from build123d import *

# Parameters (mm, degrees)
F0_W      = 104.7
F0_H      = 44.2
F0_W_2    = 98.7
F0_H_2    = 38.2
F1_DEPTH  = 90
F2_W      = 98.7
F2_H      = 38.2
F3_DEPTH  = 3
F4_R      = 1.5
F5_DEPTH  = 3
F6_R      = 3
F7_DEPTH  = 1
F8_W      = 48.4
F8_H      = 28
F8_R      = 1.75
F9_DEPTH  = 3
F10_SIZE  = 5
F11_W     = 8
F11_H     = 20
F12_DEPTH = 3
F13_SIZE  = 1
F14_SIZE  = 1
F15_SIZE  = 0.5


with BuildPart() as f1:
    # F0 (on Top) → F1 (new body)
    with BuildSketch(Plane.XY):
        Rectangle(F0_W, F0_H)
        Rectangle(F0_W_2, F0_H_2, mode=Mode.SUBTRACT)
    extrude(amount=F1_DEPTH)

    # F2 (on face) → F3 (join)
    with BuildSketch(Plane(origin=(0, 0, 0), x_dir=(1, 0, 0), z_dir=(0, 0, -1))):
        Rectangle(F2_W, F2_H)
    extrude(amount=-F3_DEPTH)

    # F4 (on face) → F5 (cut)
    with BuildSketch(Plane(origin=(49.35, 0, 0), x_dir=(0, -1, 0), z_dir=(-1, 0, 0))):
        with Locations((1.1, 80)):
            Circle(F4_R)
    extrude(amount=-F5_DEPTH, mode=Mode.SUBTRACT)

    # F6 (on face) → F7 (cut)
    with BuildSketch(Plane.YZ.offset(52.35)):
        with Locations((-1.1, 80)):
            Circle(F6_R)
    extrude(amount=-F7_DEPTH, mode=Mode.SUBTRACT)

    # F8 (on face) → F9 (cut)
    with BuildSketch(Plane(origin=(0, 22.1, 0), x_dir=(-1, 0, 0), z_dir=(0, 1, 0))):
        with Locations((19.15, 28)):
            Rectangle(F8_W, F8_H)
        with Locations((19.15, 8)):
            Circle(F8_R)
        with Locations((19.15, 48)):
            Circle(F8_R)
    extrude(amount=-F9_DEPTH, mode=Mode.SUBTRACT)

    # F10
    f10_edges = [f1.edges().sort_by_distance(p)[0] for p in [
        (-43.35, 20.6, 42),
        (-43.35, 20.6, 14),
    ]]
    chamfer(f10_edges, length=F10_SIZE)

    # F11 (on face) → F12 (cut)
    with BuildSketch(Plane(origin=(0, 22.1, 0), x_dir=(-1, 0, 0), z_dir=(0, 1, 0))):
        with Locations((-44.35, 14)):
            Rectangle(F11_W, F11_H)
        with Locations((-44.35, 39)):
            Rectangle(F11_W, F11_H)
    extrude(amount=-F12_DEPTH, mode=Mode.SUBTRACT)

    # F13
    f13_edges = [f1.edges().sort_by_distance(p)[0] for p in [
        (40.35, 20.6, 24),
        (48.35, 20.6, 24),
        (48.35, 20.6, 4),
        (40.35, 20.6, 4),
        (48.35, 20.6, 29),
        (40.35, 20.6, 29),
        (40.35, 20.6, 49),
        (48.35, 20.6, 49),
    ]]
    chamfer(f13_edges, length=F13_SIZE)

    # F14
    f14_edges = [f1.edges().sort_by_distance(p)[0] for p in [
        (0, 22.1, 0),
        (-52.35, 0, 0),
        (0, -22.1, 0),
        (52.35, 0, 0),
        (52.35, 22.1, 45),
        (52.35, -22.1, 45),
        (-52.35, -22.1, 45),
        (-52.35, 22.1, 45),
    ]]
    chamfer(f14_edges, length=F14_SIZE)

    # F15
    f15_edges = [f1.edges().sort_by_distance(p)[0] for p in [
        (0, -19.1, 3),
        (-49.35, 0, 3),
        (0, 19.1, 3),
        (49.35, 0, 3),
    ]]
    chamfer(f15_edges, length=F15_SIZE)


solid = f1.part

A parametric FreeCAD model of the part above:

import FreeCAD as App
import Part
import Sketcher

V = App.Vector


def edges_at(feature, points):
    """Names of the edges that pass closest to the given points."""
    edges = feature.Shape.Edges
    near = lambda p: min(range(len(edges)), key=lambda i: edges[i].distToShape(Part.Vertex(*p))[0])
    return sorted({f"Edge{near(p) + 1}" for p in points})

doc = App.newDocument("Part")
body = doc.addObject("PartDesign::Body", "Body")

sketch1 = body.newObject("Sketcher::SketchObject", "Sketch")
sketch1.AttachmentSupport = (doc.getObject("XY_Plane"), [""])
sketch1.MapMode = "FlatFace"
sketch1.addGeometry([
    Part.LineSegment(V(-52, 22, 0), V(-52, -22, 0)),
    Part.LineSegment(V(-52, -22, 0), V(52, -22, 0)),
    Part.LineSegment(V(52, -22, 0), V(52, 22, 0)),
    Part.LineSegment(V(52, 22, 0), V(-52, 22, 0)),
    Part.LineSegment(V(49, -19, 0), V(-49, -19, 0)),
    Part.LineSegment(V(-49, -19, 0), V(-49, 19, 0)),
    Part.LineSegment(V(-49, 19, 0), V(49, 19, 0)),
    Part.LineSegment(V(49, 19, 0), V(49, -19, 0)),
], False)
sketch1.addConstraint([
    Sketcher.Constraint("Coincident", 0, 2, 1, 1),
    Sketcher.Constraint("Coincident", 1, 2, 2, 1),
    Sketcher.Constraint("Coincident", 2, 2, 3, 1),
    Sketcher.Constraint("Coincident", 3, 2, 0, 1),
    Sketcher.Constraint("Coincident", 4, 2, 5, 1),
    Sketcher.Constraint("Coincident", 5, 2, 6, 1),
    Sketcher.Constraint("Coincident", 6, 2, 7, 1),
    Sketcher.Constraint("Coincident", 7, 2, 4, 1),
    Sketcher.Constraint("Vertical", 0),
    Sketcher.Constraint("Horizontal", 1),
    Sketcher.Constraint("Vertical", 2),
    Sketcher.Constraint("Horizontal", 3),
    Sketcher.Constraint("Horizontal", 4),
    Sketcher.Constraint("Vertical", 5),
    Sketcher.Constraint("Horizontal", 6),
    Sketcher.Constraint("Vertical", 7),
    Sketcher.Constraint("Symmetric", 0, 2, 2, 2, -1, 1),
    Sketcher.Constraint("Symmetric", 4, 2, 6, 2, -1, 1),
    Sketcher.Constraint("DistanceX", 1, 1, 1, 2, 104.7),
    Sketcher.Constraint("DistanceX", 4, 2, 4, 1, 98.7),
    Sketcher.Constraint("DistanceY", 0, 2, 0, 1, 44.2),
    Sketcher.Constraint("DistanceY", 5, 1, 5, 2, 38.2),
])
pad1 = body.newObject("PartDesign::Pad", "Pad")
pad1.Profile = sketch1
pad1.Length = 90

sketch2 = body.newObject("Sketcher::SketchObject", "Sketch001")
sketch2.AttachmentSupport = (doc.getObject("XY_Plane"), [""])
sketch2.MapMode = "FlatFace"
sketch2.addGeometry([
    Part.LineSegment(V(-49, -19, 0), V(-49, 19, 0)),
    Part.LineSegment(V(-49, 19, 0), V(49, 19, 0)),
    Part.LineSegment(V(49, 19, 0), V(49, -19, 0)),
    Part.LineSegment(V(49, -19, 0), V(-49, -19, 0)),
], False)
sketch2.addConstraint([
    Sketcher.Constraint("Coincident", 0, 2, 1, 1),
    Sketcher.Constraint("Coincident", 1, 2, 2, 1),
    Sketcher.Constraint("Coincident", 2, 2, 3, 1),
    Sketcher.Constraint("Coincident", 3, 2, 0, 1),
    Sketcher.Constraint("Vertical", 0),
    Sketcher.Constraint("Horizontal", 1),
    Sketcher.Constraint("Vertical", 2),
    Sketcher.Constraint("Horizontal", 3),
    Sketcher.Constraint("Symmetric", 0, 2, 2, 2, -1, 1),
    Sketcher.Constraint("DistanceX", 1, 1, 1, 2, 98.7),
    Sketcher.Constraint("DistanceY", 0, 1, 0, 2, 38.2),
])
pad2 = body.newObject("PartDesign::Pad", "Pad001")
pad2.Profile = sketch2
pad2.Length = 3

sketch3 = body.newObject("Sketcher::SketchObject", "Sketch002")
sketch3.AttachmentSupport = (doc.getObject("YZ_Plane"), [""])
sketch3.MapMode = "FlatFace"
sketch3.AttachmentOffset = App.Placement(V(0, 0, 49.35), App.Rotation())
sketch3.addGeometry(Part.Circle(V(-1.1, 80, 0), V(0, 0, 1), 1.5), False)
sketch3.addConstraint([
    Sketcher.Constraint("Diameter", 0, 3.0),
    Sketcher.Constraint("DistanceY", -1, 1, 0, 3, 80.0),
    Sketcher.Constraint("DistanceX", 0, 3, -1, 1, 1.1),
])
pocket1 = body.newObject("PartDesign::Pocket", "Pocket")
pocket1.Profile = sketch3
pocket1.Length = 3
pocket1.Reversed = True

sketch4 = body.newObject("Sketcher::SketchObject", "Sketch003")
sketch4.AttachmentSupport = (doc.getObject("YZ_Plane"), [""])
sketch4.MapMode = "FlatFace"
sketch4.AttachmentOffset = App.Placement(V(0, 0, 52.35), App.Rotation())
sketch4.addGeometry(Part.Circle(V(-1.1, 80, 0), V(0, 0, 1), 3), False)
sketch4.addConstraint([
    Sketcher.Constraint("Diameter", 0, 6.0),
    Sketcher.Constraint("DistanceY", -1, 1, 0, 3, 80.0),
    Sketcher.Constraint("DistanceX", 0, 3, -1, 1, 1.1),
])
pocket2 = body.newObject("PartDesign::Pocket", "Pocket001")
pocket2.Profile = sketch4
pocket2.Length = 1

sketch5 = body.newObject("Sketcher::SketchObject", "Sketch004")
sketch5.AttachmentSupport = (doc.getObject("XZ_Plane"), [""])
sketch5.MapMode = "FlatFace"
sketch5.AttachmentOffset = App.Placement(V(0, 0, -22.1), App.Rotation())
sketch5.addGeometry([
    Part.LineSegment(V(5, 42, 0), V(5, 14, 0)),
    Part.LineSegment(V(5, 14, 0), V(-43.4, 14, 0)),
    Part.LineSegment(V(-43.4, 14, 0), V(-43.4, 42, 0)),
    Part.LineSegment(V(-43.4, 42, 0), V(5, 42, 0)),
    Part.Circle(V(-19.1, 8, 0), V(0, 0, 1), 1.8),
    Part.Circle(V(-19.1, 48, 0), V(0, 0, 1), 1.8),
], False)
sketch5.addConstraint([
    Sketcher.Constraint("Coincident", 0, 2, 1, 1),
    Sketcher.Constraint("Coincident", 1, 2, 2, 1),
    Sketcher.Constraint("Coincident", 2, 2, 3, 1),
    Sketcher.Constraint("Coincident", 3, 2, 0, 1),
    Sketcher.Constraint("Vertical", 0),
    Sketcher.Constraint("Horizontal", 1),
    Sketcher.Constraint("Vertical", 2),
    Sketcher.Constraint("Horizontal", 3),
    Sketcher.Constraint("Equal", 4, 5),
    Sketcher.Constraint("Vertical", 4, 3, 5, 3),
    Sketcher.Constraint("Diameter", 4, 3.5),
    Sketcher.Constraint("DistanceY", 0, 2, 0, 1, 28.0),
    Sketcher.Constraint("DistanceX", 1, 2, 1, 1, 48.4),
    Sketcher.Constraint("DistanceY", -1, 1, 4, 3, 8.0),
    Sketcher.Constraint("DistanceY", -1, 1, 5, 3, 48.0),
    Sketcher.Constraint("DistanceY", -1, 1, 0, 2, 14.0),
    Sketcher.Constraint("DistanceX", 4, 3, 0, 2, 24.2),
    Sketcher.Constraint("DistanceX", 4, 3, -1, 1, 19.15),
])
pocket3 = body.newObject("PartDesign::Pocket", "Pocket002")
pocket3.Profile = sketch5
pocket3.Length = 3
pocket3.Reversed = True
doc.recompute()

chamfer = body.newObject("PartDesign::Chamfer", "Chamfer")
chamfer.Base = (pocket3, edges_at(pocket3, [(-43.35, 20.6, 42), (-43.35, 20.6, 14)]))
chamfer.Size = 5

sketch6 = body.newObject("Sketcher::SketchObject", "Sketch005")
sketch6.AttachmentSupport = (doc.getObject("XZ_Plane"), [""])
sketch6.MapMode = "FlatFace"
sketch6.AttachmentOffset = App.Placement(V(0, 0, -22.1), App.Rotation())
sketch6.addGeometry([
    Part.LineSegment(V(48, 24, 0), V(48, 4, 0)),
    Part.LineSegment(V(48, 4, 0), V(40, 4, 0)),
    Part.LineSegment(V(40, 4, 0), V(40, 24, 0)),
    Part.LineSegment(V(40, 24, 0), V(48, 24, 0)),
    Part.LineSegment(V(48, 49, 0), V(48, 29, 0)),
    Part.LineSegment(V(48, 29, 0), V(40, 29, 0)),
    Part.LineSegment(V(40, 29, 0), V(40, 49, 0)),
    Part.LineSegment(V(40, 49, 0), V(48, 49, 0)),
], False)
sketch6.addConstraint([
    Sketcher.Constraint("Coincident", 0, 2, 1, 1),
    Sketcher.Constraint("Coincident", 1, 2, 2, 1),
    Sketcher.Constraint("Coincident", 2, 2, 3, 1),
    Sketcher.Constraint("Coincident", 3, 2, 0, 1),
    Sketcher.Constraint("Coincident", 4, 2, 5, 1),
    Sketcher.Constraint("Coincident", 5, 2, 6, 1),
    Sketcher.Constraint("Coincident", 6, 2, 7, 1),
    Sketcher.Constraint("Coincident", 7, 2, 4, 1),
    Sketcher.Constraint("Vertical", 0),
    Sketcher.Constraint("Horizontal", 1),
    Sketcher.Constraint("Vertical", 2),
    Sketcher.Constraint("Horizontal", 3),
    Sketcher.Constraint("Vertical", 4),
    Sketcher.Constraint("Horizontal", 5),
    Sketcher.Constraint("Vertical", 6),
    Sketcher.Constraint("Horizontal", 7),
    Sketcher.Constraint("Vertical", 3, 2, 4, 2),
    Sketcher.Constraint("Vertical", 2, 2, 5, 2),
    Sketcher.Constraint("Equal", 2, 4),
    Sketcher.Constraint("DistanceX", 1, 2, 1, 1, 8.0),
    Sketcher.Constraint("DistanceY", 0, 2, 0, 1, 20.0),
    Sketcher.Constraint("DistanceY", -1, 1, 0, 2, 4.0),
    Sketcher.Constraint("DistanceY", -1, 1, 4, 2, 29.0),
    Sketcher.Constraint("DistanceX", -1, 1, 0, 2, 48.35),
])
pocket4 = body.newObject("PartDesign::Pocket", "Pocket003")
pocket4.Profile = sketch6
pocket4.Length = 3
pocket4.Reversed = True
doc.recompute()

chamfer2 = body.newObject("PartDesign::Chamfer", "Chamfer001")
chamfer2.Base = (pocket4, edges_at(pocket4, [
    (40.35, 20.6, 24),
    (48.35, 20.6, 24),
    (48.35, 20.6, 4),
    (40.35, 20.6, 4),
    (48.35, 20.6, 29),
    (40.35, 20.6, 29),
    (40.35, 20.6, 49),
    (48.35, 20.6, 49),
]))
chamfer2.Size = 1
doc.recompute()

chamfer3 = body.newObject("PartDesign::Chamfer", "Chamfer002")
chamfer3.Base = (chamfer2, edges_at(chamfer2, [
    (0, 22.1, 0),
    (-52.35, 0, 0),
    (0, -22.1, 0),
    (52.35, 0, 0),
    (52.35, 22.1, 45),
    (52.35, -22.1, 45),
    (-52.35, -22.1, 45),
    (-52.35, 22.1, 45),
]))
chamfer3.Size = 1
doc.recompute()

chamfer4 = body.newObject("PartDesign::Chamfer", "Chamfer003")
chamfer4.Base = (chamfer3, edges_at(chamfer3, [
    (0, -19.1, 3),
    (-49.35, 0, 3),
    (0, 19.1, 3),
    (49.35, 0, 3),
]))
chamfer4.Size = 0.5

doc.recompute()
